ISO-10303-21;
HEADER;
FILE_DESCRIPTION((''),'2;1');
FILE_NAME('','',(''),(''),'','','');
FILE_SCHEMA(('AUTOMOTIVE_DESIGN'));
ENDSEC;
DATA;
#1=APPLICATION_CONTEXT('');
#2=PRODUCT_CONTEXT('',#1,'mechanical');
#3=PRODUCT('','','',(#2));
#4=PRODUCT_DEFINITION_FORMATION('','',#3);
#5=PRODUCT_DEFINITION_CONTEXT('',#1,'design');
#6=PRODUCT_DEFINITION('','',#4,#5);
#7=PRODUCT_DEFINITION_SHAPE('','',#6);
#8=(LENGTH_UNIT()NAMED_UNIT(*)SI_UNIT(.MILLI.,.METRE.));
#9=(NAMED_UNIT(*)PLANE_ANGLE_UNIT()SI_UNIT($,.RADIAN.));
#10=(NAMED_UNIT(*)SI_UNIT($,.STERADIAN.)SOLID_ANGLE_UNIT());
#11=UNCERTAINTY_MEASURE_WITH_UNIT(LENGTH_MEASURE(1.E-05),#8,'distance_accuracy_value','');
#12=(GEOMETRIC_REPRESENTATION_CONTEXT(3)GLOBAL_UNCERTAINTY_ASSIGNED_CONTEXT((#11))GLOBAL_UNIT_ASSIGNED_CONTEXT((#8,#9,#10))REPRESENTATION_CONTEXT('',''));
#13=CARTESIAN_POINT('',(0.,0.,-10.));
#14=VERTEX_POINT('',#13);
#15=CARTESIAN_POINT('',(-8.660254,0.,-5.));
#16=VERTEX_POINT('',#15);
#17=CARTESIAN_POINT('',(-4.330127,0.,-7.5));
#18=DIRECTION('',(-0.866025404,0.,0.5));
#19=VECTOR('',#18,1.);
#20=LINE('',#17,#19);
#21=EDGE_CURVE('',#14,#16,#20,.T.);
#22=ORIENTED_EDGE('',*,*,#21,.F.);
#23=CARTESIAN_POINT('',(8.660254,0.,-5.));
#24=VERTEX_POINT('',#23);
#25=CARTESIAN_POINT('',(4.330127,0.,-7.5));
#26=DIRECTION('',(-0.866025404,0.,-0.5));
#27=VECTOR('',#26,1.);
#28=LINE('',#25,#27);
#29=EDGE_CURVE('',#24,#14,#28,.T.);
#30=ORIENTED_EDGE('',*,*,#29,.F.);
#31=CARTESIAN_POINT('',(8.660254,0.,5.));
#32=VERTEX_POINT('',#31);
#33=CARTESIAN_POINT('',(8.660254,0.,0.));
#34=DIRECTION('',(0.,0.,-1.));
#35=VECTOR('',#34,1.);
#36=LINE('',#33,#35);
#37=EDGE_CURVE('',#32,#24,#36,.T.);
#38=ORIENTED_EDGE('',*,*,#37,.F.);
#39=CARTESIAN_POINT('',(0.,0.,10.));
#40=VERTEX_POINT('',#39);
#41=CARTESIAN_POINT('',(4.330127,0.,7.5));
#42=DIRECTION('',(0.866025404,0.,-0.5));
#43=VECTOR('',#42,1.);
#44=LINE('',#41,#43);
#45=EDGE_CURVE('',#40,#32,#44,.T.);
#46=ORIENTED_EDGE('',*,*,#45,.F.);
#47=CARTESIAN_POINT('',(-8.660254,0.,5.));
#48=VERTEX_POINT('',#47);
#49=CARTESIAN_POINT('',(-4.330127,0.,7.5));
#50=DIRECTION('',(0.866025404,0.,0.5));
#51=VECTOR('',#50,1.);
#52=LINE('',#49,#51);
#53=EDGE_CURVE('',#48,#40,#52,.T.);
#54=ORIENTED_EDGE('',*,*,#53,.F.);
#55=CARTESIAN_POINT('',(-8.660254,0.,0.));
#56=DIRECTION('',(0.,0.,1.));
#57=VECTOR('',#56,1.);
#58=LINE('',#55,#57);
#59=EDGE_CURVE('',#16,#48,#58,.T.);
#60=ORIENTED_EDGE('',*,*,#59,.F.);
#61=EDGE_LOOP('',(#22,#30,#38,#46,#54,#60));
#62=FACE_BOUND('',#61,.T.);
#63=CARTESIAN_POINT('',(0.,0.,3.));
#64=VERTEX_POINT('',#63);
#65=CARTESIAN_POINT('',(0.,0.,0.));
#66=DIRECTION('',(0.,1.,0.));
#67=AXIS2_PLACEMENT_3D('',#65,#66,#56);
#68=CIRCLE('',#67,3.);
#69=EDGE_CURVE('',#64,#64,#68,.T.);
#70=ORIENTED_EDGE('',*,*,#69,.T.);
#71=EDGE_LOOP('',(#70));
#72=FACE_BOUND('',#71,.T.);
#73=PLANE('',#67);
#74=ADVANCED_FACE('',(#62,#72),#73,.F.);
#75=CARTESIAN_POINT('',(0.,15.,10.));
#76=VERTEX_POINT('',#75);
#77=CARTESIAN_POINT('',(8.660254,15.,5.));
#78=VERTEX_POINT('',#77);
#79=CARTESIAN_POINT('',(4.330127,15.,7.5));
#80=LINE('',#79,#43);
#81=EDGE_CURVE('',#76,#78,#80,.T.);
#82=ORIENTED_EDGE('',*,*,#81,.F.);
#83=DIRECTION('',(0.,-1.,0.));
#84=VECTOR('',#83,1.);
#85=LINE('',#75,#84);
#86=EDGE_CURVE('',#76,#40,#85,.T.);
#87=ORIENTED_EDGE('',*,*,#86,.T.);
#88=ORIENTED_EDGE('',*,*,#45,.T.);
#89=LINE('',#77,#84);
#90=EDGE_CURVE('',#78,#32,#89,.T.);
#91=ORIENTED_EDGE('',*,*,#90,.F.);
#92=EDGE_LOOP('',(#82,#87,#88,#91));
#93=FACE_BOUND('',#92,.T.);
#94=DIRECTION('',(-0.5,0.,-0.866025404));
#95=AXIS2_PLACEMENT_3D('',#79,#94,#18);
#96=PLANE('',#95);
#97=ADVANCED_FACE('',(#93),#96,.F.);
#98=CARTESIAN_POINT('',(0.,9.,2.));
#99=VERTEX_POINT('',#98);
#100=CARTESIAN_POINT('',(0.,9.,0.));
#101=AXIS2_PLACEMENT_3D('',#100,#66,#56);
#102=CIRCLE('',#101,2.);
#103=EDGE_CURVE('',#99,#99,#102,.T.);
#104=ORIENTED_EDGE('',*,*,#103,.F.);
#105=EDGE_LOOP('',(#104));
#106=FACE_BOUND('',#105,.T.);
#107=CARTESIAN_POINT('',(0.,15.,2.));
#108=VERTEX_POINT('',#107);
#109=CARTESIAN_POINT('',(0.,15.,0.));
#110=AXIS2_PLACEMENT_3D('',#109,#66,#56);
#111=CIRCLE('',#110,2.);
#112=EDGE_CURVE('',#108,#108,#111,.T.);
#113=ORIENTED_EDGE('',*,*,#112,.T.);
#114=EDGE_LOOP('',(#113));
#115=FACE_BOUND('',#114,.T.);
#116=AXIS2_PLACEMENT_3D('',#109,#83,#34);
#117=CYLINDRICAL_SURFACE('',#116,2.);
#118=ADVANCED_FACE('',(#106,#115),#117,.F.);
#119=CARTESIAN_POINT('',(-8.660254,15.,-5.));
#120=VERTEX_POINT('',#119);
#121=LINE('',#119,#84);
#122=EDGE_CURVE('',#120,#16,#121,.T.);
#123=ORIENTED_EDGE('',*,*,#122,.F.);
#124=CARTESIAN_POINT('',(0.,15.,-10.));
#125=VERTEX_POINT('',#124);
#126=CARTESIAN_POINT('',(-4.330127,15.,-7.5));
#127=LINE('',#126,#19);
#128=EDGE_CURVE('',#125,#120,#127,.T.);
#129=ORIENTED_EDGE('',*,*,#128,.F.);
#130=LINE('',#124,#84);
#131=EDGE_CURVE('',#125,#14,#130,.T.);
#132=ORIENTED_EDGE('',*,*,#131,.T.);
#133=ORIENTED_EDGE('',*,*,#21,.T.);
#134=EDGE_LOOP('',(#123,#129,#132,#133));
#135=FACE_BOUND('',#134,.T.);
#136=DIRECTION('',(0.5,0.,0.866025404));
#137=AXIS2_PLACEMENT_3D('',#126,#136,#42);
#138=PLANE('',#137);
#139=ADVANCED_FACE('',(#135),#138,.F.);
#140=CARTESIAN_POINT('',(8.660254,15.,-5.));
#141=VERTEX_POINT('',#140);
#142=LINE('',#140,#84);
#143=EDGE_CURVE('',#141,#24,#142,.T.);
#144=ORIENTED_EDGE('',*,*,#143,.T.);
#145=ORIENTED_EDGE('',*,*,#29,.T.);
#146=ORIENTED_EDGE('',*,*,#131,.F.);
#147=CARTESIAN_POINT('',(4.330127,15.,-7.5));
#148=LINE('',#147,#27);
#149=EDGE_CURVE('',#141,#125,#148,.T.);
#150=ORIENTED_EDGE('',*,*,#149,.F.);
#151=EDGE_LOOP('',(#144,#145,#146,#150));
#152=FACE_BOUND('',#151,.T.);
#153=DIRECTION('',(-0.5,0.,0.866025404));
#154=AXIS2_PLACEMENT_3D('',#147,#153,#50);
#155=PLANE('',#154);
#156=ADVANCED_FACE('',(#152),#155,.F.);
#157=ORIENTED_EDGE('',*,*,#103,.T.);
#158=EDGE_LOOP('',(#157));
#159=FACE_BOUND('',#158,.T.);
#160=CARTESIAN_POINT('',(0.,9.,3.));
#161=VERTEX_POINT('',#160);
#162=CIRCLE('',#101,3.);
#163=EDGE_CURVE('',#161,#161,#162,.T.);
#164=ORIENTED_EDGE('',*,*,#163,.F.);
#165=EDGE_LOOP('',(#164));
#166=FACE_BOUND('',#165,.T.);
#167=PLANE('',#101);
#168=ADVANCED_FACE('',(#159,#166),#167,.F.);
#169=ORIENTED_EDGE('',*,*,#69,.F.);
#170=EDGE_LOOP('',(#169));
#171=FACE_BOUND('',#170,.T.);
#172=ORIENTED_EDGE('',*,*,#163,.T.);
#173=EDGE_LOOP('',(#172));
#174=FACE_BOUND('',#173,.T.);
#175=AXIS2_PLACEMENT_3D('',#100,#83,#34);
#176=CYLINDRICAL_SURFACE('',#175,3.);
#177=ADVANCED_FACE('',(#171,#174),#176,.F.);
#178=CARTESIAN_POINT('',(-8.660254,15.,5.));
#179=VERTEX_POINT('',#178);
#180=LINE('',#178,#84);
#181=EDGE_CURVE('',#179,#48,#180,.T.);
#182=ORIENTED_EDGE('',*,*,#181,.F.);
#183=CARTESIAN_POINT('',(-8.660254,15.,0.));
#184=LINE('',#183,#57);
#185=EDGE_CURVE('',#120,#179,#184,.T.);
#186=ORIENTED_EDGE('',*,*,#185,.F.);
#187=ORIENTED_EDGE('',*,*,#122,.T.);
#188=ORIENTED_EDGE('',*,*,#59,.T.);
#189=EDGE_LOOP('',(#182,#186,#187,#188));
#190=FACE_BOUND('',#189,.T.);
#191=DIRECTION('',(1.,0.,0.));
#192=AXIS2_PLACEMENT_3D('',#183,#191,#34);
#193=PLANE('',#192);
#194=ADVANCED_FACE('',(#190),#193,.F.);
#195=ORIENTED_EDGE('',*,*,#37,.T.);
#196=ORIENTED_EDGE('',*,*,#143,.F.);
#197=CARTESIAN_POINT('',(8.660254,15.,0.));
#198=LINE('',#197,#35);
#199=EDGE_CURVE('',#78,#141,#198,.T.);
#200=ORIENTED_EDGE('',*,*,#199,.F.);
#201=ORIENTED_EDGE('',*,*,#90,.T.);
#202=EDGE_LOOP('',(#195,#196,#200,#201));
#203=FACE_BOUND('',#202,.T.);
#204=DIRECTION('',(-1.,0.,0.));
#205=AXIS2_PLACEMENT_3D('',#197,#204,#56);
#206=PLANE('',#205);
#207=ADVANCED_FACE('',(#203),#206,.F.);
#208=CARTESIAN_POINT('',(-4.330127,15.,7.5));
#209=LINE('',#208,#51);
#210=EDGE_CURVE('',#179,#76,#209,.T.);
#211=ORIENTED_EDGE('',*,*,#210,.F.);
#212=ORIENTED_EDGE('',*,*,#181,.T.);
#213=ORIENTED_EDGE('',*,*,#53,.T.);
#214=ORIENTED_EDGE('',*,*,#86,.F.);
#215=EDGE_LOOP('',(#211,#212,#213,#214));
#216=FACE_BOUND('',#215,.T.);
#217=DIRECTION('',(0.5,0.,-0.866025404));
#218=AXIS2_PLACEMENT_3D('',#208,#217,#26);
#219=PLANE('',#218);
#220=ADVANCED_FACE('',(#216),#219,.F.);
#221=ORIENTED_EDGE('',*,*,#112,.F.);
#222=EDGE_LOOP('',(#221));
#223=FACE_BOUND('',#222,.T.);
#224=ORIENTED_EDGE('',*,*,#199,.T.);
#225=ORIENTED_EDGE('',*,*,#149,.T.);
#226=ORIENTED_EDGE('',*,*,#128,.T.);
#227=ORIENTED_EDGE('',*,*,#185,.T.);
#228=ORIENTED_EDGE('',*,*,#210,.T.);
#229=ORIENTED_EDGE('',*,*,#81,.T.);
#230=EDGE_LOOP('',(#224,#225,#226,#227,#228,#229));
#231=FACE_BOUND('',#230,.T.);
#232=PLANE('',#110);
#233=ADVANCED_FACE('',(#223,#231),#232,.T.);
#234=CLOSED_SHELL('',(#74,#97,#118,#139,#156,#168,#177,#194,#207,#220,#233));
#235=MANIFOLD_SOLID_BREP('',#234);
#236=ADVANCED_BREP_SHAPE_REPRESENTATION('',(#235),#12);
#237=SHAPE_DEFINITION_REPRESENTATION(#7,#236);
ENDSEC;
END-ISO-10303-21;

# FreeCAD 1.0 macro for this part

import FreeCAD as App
import Part
import Sketcher
from FreeCAD import Vector
Q = App.Units.Quantity


def add_polygon(sketch, points):
    """Adds a closed chain of lines whose ends are joined by coincident constraints."""
    first, n = sketch.GeometryCount, len(points)
    for a, b in zip(points, points[1:] + points[:1]):
        sketch.addGeometry(Part.LineSegment(App.Vector(*a, 0), App.Vector(*b, 0)), False)
    for i in range(n):
        sketch.addConstraint(Sketcher.Constraint("Coincident", first + i, 2, first + (i + 1) % n, 1))

doc = App.newDocument("Part")
body = doc.addObject("PartDesign::Body", "Body")

# Sketch on XZ plane
sketch1 = body.newObject("Sketcher::SketchObject", "Sketch")
sketch1.AttachmentSupport = (doc.getObject("XZ_Plane"), [""])
sketch1.MapMode = "FlatFace"
add_polygon(sketch1, [(0, -10), (-8.7, -5), (-8.7, 5), (0, 10), (8.7, 5), (8.7, -5)])  # lines 0-5
sketch1.addGeometry(Part.Circle(Vector(0, 0, 0), Vector(0, 0, 1), 2), False)  # 6
sketch1.addConstraint(Sketcher.Constraint("Vertical", 1))
sketch1.addConstraint(Sketcher.Constraint("Vertical", 4))
sketch1.addConstraint(Sketcher.Constraint("Coincident", 6, 3, -1, 1))
sketch1.addConstraint(Sketcher.Constraint("Symmetric", 0, 2, 3, 2, -1, 1))
sketch1.addConstraint(Sketcher.Constraint("Symmetric", 2, 2, 5, 2, -1, 1))
sketch1.addConstraint(Sketcher.Constraint("PointOnObject", 2, 2, -2))
sketch1.addConstraint(Sketcher.Constraint("Parallel", 2, 5))
sketch1.addConstraint(Sketcher.Constraint("Horizontal", 1, 2, 3, 2))
sketch1.addConstraint(Sketcher.Constraint("Diameter", 6, Q("4 mm")))
sketch1.addConstraint(Sketcher.Constraint("DistanceY", 1, 1, 1, 2, Q("10 mm")))
sketch1.addConstraint(Sketcher.Constraint("Angle", 0, Q("150 deg")))
sketch1.addConstraint(Sketcher.Constraint("Distance", 0, Q("10 mm")))
pad1 = body.newObject("PartDesign::Pad", "Pad")
pad1.Profile = sketch1
pad1.Length = 15
pad1.Reversed = True

# Sketch on XZ plane
sketch2 = body.newObject("Sketcher::SketchObject", "Sketch001")
sketch2.AttachmentSupport = (doc.getObject("XZ_Plane"), [""])
sketch2.MapMode = "FlatFace"
sketch2.addGeometry(Part.Circle(Vector(0, 0, 0), Vector(0, 0, 1), 3), False)
sketch2.addConstraint(Sketcher.Constraint("Coincident", 0, 3, -1, 1))
sketch2.addConstraint(Sketcher.Constraint("Diameter", 0, Q("6 mm")))
pocket1 = body.newObject("PartDesign::Pocket", "Pocket")
pocket1.Profile = sketch2
pocket1.Length = 9

doc.recompute()
